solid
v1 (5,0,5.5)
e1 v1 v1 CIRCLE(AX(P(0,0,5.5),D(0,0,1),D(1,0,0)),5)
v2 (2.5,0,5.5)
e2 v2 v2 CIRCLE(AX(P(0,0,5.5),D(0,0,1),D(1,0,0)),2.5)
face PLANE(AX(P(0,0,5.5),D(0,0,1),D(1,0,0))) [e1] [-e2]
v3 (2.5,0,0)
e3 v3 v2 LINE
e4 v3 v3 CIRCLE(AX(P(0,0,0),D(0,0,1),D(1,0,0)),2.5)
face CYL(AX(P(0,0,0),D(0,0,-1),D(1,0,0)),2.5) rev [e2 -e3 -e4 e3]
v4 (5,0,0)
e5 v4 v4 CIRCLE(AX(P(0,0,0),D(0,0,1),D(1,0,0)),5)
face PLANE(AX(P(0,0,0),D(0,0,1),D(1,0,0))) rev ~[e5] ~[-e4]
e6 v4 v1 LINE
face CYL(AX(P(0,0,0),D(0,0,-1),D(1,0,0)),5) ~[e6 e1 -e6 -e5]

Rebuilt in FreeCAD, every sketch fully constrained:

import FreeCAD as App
import Part
import Sketcher

V = App.Vector

doc = App.newDocument("Part")
body = doc.addObject("PartDesign::Body", "Body")

# Sketch on XY plane
sketch1 = doc.addObject("Sketcher::SketchObject", "Sketch")
body.addObject(sketch1)
sketch1.AttachmentSupport = (doc.XY_Plane, [""])
sketch1.MapMode = "FlatFace"
sketch1.addGeometry(Part.Circle(V(0, 0, 0), V(0, 0, 1), 5), False)
sketch1.addGeometry(Part.Circle(V(0, 0, 0), V(0, 0, 1), 2.5), False)
sketch1.addConstraint(Sketcher.Constraint("Coincident", 0, 3, -1, 1))
sketch1.addConstraint(Sketcher.Constraint("Coincident", 1, 3, -1, 1))
sketch1.addConstraint(Sketcher.Constraint("Diameter", 0, 10.0))
sketch1.addConstraint(Sketcher.Constraint("Diameter", 1, 5.0))
pad1 = doc.addObject("PartDesign::Pad", "Pad")
body.addObject(pad1)
pad1.Profile = sketch1
pad1.Length = 5.5

doc.recompute()
